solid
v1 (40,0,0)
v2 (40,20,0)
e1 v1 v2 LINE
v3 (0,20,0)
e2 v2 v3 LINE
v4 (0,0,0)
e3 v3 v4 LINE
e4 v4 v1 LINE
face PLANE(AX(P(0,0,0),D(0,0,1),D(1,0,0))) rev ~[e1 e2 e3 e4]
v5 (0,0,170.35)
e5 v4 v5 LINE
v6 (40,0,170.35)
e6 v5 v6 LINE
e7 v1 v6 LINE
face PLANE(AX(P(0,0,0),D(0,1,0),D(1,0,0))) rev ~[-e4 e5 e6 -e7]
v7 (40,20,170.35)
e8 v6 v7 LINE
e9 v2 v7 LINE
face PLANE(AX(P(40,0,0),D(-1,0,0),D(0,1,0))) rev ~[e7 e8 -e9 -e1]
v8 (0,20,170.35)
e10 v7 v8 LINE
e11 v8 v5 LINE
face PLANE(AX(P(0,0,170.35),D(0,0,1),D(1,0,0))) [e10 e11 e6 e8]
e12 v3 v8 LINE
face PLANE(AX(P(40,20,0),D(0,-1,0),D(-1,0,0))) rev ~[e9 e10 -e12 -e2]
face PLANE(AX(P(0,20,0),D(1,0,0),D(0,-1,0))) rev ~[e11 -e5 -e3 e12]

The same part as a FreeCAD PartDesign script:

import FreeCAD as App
import Part
import Sketcher
from FreeCAD import Vector
Q = App.Units.Quantity


def add_polygon(sketch, points):
    """Adds a closed chain of lines whose ends are joined by coincident constraints."""
    first, n = sketch.GeometryCount, len(points)
    for a, b in zip(points, points[1:] + points[:1]):
        sketch.addGeometry(Part.LineSegment(App.Vector(*a, 0), App.Vector(*b, 0)), False)
    for i in range(n):
        sketch.addConstraint(Sketcher.Constraint("Coincident", first + i, 2, first + (i + 1) % n, 1))

doc = App.newDocument("Part")
body = doc.addObject("PartDesign::Body", "Body")

# Sketch on XY plane
sketch1 = body.newObject("Sketcher::SketchObject", "Sketch")
sketch1.AttachmentSupport = (doc.getObject("XY_Plane"), [""])
sketch1.MapMode = "FlatFace"
add_polygon(sketch1, [(0, 20), (0, 0), (40, 0), (40, 20)])  # lines 0-3
sketch1.addConstraint([
    Sketcher.Constraint("Vertical", 0),
    Sketcher.Constraint("Horizontal", 1),
    Sketcher.Constraint("Vertical", 2),
    Sketcher.Constraint("Horizontal", 3),
    Sketcher.Constraint("Coincident", 0, 2, -1, 1),
    Sketcher.Constraint("DistanceX", 1, 1, 1, 2, Q("40 mm")),
    Sketcher.Constraint("DistanceY", 0, 2, 0, 1, Q("20 mm")),
])
pad1 = body.newObject("PartDesign::Pad", "Pad")
pad1.Profile = sketch1
pad1.Length = 170.35

doc.recompute()
